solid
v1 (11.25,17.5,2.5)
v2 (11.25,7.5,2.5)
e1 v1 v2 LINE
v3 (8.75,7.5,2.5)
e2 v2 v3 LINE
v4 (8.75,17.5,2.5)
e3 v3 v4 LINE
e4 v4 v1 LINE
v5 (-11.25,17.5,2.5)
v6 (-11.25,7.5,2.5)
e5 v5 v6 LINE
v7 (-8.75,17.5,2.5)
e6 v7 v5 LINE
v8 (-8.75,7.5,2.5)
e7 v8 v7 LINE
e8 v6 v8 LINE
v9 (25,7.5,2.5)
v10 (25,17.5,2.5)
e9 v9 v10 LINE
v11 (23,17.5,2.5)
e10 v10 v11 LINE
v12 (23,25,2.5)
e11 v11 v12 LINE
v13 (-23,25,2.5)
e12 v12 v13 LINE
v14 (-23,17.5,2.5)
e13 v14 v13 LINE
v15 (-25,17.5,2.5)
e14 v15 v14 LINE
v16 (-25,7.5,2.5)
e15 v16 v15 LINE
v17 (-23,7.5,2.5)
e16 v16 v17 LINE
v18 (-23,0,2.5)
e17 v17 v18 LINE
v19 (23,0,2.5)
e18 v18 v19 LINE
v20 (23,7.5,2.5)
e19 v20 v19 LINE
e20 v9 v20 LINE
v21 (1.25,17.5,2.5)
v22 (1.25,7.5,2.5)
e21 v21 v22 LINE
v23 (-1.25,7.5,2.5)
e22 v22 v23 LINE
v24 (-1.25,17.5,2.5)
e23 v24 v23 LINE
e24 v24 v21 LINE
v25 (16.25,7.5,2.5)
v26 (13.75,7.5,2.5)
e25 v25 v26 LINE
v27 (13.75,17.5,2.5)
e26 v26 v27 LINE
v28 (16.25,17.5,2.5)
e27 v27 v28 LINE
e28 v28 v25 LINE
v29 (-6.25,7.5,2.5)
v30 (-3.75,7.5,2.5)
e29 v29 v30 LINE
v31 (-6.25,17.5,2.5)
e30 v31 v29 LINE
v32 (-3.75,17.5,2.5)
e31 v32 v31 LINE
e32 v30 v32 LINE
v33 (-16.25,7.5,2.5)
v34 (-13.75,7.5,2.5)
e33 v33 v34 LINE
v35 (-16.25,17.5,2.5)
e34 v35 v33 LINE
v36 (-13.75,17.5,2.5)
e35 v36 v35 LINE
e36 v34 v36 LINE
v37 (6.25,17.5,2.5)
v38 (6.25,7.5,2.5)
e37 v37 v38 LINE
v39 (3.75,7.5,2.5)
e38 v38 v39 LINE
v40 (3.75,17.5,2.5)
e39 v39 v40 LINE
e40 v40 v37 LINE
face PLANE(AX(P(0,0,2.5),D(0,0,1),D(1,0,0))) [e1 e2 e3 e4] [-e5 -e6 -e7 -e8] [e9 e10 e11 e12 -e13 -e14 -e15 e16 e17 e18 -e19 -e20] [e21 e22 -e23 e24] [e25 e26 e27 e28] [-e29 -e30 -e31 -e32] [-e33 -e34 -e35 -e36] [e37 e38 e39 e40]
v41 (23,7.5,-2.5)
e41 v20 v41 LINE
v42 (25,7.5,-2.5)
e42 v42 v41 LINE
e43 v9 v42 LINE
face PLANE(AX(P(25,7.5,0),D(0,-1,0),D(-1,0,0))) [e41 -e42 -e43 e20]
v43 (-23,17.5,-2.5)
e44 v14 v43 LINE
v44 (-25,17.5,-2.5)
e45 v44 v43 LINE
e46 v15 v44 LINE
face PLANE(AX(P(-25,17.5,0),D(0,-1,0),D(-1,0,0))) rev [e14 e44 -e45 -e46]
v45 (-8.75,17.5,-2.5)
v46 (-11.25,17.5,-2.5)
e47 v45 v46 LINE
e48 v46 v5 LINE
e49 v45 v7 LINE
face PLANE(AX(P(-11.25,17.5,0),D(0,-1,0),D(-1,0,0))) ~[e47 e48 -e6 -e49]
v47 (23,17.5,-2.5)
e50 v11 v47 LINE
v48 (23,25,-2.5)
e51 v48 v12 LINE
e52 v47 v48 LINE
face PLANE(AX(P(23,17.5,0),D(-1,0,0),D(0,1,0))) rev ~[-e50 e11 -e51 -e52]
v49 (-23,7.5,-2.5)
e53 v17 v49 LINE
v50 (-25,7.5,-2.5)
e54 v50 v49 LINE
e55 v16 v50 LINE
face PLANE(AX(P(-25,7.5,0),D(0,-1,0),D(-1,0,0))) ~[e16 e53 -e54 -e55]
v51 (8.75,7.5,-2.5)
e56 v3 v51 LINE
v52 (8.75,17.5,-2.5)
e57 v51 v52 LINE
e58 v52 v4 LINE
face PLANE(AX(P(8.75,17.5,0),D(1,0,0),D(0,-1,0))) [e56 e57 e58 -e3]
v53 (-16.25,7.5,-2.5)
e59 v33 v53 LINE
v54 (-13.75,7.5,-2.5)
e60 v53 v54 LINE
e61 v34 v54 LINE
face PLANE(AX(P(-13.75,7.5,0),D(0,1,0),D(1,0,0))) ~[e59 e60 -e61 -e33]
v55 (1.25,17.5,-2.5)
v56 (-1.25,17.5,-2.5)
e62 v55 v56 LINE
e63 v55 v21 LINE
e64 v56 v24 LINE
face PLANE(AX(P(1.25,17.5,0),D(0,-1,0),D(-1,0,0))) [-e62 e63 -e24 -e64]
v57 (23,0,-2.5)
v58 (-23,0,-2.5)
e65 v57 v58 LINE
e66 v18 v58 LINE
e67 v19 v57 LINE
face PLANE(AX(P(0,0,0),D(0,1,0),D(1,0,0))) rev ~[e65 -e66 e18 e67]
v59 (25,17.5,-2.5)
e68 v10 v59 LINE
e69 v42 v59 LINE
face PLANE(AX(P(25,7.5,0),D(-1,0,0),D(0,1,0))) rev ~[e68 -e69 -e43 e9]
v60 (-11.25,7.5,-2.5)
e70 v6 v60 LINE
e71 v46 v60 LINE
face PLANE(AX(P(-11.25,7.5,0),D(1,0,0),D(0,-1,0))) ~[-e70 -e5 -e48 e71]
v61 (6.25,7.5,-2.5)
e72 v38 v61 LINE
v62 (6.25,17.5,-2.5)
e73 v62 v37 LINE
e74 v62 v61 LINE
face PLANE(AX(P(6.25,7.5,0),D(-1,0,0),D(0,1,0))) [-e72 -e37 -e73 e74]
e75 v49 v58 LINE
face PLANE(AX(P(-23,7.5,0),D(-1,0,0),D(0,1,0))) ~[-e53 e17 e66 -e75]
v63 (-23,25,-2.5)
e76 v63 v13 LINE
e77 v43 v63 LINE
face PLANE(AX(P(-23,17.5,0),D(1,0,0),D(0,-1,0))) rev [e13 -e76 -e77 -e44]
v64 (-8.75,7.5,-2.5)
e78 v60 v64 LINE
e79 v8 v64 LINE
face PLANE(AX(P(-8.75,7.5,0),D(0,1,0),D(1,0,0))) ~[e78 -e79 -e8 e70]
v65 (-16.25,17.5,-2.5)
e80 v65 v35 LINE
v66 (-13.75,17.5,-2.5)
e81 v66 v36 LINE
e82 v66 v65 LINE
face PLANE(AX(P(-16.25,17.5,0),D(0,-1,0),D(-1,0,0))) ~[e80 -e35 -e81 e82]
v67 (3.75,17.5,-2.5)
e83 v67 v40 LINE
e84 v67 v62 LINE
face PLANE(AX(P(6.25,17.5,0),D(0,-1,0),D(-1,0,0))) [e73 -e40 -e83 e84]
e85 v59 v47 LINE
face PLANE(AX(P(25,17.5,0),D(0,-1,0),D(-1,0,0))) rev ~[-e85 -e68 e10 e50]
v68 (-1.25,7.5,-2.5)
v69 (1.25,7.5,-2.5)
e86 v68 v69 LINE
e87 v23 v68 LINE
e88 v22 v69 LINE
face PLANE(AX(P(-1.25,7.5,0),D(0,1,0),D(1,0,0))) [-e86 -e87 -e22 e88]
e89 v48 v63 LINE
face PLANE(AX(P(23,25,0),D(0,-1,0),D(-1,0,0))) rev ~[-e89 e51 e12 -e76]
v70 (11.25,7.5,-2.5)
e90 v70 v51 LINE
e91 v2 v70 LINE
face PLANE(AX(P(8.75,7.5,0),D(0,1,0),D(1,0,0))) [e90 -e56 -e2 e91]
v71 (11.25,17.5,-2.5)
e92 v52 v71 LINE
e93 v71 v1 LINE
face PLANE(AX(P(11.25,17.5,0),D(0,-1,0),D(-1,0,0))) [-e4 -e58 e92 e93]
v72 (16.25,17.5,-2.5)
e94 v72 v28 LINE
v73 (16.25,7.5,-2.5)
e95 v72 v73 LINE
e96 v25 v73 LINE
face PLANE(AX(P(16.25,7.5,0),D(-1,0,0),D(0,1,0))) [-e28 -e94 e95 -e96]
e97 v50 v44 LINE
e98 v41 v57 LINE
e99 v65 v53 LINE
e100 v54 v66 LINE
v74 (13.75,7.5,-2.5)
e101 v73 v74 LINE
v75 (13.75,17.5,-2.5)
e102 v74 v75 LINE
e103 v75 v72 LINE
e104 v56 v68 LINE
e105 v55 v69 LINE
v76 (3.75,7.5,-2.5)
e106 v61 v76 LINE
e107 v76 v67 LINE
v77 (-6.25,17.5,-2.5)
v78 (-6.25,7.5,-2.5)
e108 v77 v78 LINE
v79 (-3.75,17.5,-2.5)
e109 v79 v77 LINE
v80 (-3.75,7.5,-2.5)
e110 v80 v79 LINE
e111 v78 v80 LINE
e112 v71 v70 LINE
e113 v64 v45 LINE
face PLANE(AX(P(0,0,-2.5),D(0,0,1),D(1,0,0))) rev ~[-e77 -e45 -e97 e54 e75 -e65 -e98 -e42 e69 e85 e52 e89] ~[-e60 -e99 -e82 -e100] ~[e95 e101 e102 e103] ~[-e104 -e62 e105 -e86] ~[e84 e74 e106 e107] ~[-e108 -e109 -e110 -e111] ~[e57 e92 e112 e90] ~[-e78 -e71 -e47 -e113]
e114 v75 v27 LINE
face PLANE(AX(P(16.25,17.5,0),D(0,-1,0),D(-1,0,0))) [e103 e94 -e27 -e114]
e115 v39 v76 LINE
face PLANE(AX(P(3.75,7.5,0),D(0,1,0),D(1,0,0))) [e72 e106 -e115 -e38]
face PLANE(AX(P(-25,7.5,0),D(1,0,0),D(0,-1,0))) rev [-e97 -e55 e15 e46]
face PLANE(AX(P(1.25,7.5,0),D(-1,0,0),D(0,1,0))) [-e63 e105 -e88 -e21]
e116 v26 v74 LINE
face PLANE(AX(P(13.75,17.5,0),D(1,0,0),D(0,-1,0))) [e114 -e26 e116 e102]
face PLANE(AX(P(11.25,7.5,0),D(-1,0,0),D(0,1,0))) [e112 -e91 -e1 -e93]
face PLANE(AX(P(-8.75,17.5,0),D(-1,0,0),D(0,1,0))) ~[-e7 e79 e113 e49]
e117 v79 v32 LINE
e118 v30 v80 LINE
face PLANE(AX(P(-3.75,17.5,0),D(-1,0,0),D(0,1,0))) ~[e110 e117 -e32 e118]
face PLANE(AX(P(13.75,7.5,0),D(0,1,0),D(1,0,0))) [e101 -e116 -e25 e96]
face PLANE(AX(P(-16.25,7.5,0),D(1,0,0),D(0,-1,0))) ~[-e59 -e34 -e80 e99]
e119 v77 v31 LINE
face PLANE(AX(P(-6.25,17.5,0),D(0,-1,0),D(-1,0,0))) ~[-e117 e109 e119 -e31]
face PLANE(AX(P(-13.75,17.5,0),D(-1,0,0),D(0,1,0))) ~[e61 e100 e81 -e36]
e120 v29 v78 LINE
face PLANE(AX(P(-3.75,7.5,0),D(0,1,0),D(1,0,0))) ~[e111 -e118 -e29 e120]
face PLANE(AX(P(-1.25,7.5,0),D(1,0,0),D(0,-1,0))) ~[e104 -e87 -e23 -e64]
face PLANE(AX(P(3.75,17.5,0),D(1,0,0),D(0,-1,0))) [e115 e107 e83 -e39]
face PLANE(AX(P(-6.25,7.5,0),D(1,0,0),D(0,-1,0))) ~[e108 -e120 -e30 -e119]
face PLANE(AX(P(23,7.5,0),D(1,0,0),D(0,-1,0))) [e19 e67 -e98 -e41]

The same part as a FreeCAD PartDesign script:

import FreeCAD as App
import Part
import Sketcher
Q = App.Units.Quantity


def add_polygon(sketch, points):
    """Adds a closed chain of lines whose ends are joined by coincident constraints."""
    first, n = sketch.GeometryCount, len(points)
    for a, b in zip(points, points[1:] + points[:1]):
        sketch.addGeometry(Part.LineSegment(App.Vector(*a, 0), App.Vector(*b, 0)), False)
    for i in range(n):
        sketch.addConstraint(Sketcher.Constraint("Coincident", first + i, 2, first + (i + 1) % n, 1))

doc = App.newDocument("Part")
params = doc.addObject("Spreadsheet::Sheet", "Params")
for row, (alias, value) in enumerate([
    ("sketch1_width", "23 mm"),
    ("sketch1_width2", "2 mm"),
    ("sketch1_height", "25 mm"),
    ("sketch1_height2", "10 mm"),
    ("pad1_length", "5 mm"),
    ("sketch2_height", "10 mm"),
    ("sketch2_width", "2.5 mm"),
    ("linearpattern_pitch", "5 mm"),
], start=1):
    params.set(f"A{row}", alias)
    params.set(f"B{row}", "=" + value)
    params.setAlias(f"B{row}", alias)

body = doc.addObject("PartDesign::Body", "Body")

# Sketch on XY plane
sketch1 = body.newObject("Sketcher::SketchObject", "Sketch")
sketch1.AttachmentSupport = (doc.getObject("XY_Plane"), [""])
sketch1.MapMode = "FlatFace"
add_polygon(sketch1, [(23, 17.5), (23, 25), (0, 25), (0, 0), (23, 0), (23, 7.5), (25, 7.5), (25, 17.5)])  # lines 0-7
sketch1.addConstraint([
    Sketcher.Constraint("Vertical", 0),
    Sketcher.Constraint("Horizontal", 1),
    Sketcher.Constraint("Vertical", 2),
    Sketcher.Constraint("Horizontal", 3),
    Sketcher.Constraint("Vertical", 4),
    Sketcher.Constraint("Horizontal", 5),
    Sketcher.Constraint("Vertical", 6),
    Sketcher.Constraint("Horizontal", 7),
    Sketcher.Constraint("Coincident", 2, 2, -1, 1),
    Sketcher.Constraint("Vertical", 0, 2, 3, 2),
    Sketcher.Constraint("Equal", 0, 4),
    Sketcher.Constraint("DistanceX", 1, 2, 1, 1, Q("23 mm")),
    Sketcher.Constraint("DistanceX", 5, 1, 5, 2, Q("2 mm")),
    Sketcher.Constraint("DistanceY", 2, 2, 2, 1, Q("25 mm")),
    Sketcher.Constraint("DistanceY", 6, 1, 6, 2, Q("10 mm")),
])
sketch1.setExpression("Constraints[19]", "Params.sketch1_width")
sketch1.setExpression("Constraints[20]", "Params.sketch1_width2")
sketch1.setExpression("Constraints[21]", "Params.sketch1_height")
sketch1.setExpression("Constraints[22]", "Params.sketch1_height2")
pad1 = body.newObject("PartDesign::Pad", "Pad")
pad1.Profile = sketch1
pad1.setExpression("Length", "Params.pad1_length")
pad1.Midplane = True

# Sketch on XY plane
sketch2 = body.newObject("Sketcher::SketchObject", "Sketch001")
sketch2.AttachmentSupport = (doc.getObject("XY_Plane"), [""])
sketch2.MapMode = "FlatFace"
add_polygon(sketch2, [(16.25, 7.5), (16.25, 17.5), (13.75, 17.5), (13.75, 7.5)])  # lines 0-3
sketch2.addConstraint([
    Sketcher.Constraint("Vertical", 0),
    Sketcher.Constraint("Horizontal", 1),
    Sketcher.Constraint("Vertical", 2),
    Sketcher.Constraint("Horizontal", 3),
    Sketcher.Constraint("DistanceY", 0, 1, 0, 2, Q("10 mm")),
    Sketcher.Constraint("DistanceX", 1, 2, 1, 1, Q("2.5 mm")),
    Sketcher.Constraint("DistanceY", -1, 1, 0, 2, Q("17.5 mm")),
    Sketcher.Constraint("DistanceX", -1, 1, 0, 2, Q("16.25 mm")),
])
sketch2.setExpression("Constraints[8]", "Params.sketch2_height")
sketch2.setExpression("Constraints[9]", "Params.sketch2_width")
pocket1 = body.newObject("PartDesign::Pocket", "Pocket")
pocket1.Profile = sketch2
pocket1.Type = "ThroughAll"
pocket1.Midplane = True
doc.recompute()

linearpattern = body.newObject("PartDesign::LinearPattern", "LinearPattern")
linearpattern.Originals = [pocket1]
linearpattern.Direction = (doc.getObject("X_Axis"), [""])
linearpattern.Mode = "offset"
linearpattern.setExpression("Offset", "Params.linearpattern_pitch")
linearpattern.Occurrences = 11
linearpattern.Reversed = True
body.Tip = linearpattern
doc.recompute()

mirrored = body.newObject("PartDesign::Mirrored", "Mirrored")
mirrored.TransformMode = "Transform body"
mirrored.MirrorPlane = (doc.getObject("YZ_Plane"), [""])
body.Tip = mirrored

doc.recompute()
